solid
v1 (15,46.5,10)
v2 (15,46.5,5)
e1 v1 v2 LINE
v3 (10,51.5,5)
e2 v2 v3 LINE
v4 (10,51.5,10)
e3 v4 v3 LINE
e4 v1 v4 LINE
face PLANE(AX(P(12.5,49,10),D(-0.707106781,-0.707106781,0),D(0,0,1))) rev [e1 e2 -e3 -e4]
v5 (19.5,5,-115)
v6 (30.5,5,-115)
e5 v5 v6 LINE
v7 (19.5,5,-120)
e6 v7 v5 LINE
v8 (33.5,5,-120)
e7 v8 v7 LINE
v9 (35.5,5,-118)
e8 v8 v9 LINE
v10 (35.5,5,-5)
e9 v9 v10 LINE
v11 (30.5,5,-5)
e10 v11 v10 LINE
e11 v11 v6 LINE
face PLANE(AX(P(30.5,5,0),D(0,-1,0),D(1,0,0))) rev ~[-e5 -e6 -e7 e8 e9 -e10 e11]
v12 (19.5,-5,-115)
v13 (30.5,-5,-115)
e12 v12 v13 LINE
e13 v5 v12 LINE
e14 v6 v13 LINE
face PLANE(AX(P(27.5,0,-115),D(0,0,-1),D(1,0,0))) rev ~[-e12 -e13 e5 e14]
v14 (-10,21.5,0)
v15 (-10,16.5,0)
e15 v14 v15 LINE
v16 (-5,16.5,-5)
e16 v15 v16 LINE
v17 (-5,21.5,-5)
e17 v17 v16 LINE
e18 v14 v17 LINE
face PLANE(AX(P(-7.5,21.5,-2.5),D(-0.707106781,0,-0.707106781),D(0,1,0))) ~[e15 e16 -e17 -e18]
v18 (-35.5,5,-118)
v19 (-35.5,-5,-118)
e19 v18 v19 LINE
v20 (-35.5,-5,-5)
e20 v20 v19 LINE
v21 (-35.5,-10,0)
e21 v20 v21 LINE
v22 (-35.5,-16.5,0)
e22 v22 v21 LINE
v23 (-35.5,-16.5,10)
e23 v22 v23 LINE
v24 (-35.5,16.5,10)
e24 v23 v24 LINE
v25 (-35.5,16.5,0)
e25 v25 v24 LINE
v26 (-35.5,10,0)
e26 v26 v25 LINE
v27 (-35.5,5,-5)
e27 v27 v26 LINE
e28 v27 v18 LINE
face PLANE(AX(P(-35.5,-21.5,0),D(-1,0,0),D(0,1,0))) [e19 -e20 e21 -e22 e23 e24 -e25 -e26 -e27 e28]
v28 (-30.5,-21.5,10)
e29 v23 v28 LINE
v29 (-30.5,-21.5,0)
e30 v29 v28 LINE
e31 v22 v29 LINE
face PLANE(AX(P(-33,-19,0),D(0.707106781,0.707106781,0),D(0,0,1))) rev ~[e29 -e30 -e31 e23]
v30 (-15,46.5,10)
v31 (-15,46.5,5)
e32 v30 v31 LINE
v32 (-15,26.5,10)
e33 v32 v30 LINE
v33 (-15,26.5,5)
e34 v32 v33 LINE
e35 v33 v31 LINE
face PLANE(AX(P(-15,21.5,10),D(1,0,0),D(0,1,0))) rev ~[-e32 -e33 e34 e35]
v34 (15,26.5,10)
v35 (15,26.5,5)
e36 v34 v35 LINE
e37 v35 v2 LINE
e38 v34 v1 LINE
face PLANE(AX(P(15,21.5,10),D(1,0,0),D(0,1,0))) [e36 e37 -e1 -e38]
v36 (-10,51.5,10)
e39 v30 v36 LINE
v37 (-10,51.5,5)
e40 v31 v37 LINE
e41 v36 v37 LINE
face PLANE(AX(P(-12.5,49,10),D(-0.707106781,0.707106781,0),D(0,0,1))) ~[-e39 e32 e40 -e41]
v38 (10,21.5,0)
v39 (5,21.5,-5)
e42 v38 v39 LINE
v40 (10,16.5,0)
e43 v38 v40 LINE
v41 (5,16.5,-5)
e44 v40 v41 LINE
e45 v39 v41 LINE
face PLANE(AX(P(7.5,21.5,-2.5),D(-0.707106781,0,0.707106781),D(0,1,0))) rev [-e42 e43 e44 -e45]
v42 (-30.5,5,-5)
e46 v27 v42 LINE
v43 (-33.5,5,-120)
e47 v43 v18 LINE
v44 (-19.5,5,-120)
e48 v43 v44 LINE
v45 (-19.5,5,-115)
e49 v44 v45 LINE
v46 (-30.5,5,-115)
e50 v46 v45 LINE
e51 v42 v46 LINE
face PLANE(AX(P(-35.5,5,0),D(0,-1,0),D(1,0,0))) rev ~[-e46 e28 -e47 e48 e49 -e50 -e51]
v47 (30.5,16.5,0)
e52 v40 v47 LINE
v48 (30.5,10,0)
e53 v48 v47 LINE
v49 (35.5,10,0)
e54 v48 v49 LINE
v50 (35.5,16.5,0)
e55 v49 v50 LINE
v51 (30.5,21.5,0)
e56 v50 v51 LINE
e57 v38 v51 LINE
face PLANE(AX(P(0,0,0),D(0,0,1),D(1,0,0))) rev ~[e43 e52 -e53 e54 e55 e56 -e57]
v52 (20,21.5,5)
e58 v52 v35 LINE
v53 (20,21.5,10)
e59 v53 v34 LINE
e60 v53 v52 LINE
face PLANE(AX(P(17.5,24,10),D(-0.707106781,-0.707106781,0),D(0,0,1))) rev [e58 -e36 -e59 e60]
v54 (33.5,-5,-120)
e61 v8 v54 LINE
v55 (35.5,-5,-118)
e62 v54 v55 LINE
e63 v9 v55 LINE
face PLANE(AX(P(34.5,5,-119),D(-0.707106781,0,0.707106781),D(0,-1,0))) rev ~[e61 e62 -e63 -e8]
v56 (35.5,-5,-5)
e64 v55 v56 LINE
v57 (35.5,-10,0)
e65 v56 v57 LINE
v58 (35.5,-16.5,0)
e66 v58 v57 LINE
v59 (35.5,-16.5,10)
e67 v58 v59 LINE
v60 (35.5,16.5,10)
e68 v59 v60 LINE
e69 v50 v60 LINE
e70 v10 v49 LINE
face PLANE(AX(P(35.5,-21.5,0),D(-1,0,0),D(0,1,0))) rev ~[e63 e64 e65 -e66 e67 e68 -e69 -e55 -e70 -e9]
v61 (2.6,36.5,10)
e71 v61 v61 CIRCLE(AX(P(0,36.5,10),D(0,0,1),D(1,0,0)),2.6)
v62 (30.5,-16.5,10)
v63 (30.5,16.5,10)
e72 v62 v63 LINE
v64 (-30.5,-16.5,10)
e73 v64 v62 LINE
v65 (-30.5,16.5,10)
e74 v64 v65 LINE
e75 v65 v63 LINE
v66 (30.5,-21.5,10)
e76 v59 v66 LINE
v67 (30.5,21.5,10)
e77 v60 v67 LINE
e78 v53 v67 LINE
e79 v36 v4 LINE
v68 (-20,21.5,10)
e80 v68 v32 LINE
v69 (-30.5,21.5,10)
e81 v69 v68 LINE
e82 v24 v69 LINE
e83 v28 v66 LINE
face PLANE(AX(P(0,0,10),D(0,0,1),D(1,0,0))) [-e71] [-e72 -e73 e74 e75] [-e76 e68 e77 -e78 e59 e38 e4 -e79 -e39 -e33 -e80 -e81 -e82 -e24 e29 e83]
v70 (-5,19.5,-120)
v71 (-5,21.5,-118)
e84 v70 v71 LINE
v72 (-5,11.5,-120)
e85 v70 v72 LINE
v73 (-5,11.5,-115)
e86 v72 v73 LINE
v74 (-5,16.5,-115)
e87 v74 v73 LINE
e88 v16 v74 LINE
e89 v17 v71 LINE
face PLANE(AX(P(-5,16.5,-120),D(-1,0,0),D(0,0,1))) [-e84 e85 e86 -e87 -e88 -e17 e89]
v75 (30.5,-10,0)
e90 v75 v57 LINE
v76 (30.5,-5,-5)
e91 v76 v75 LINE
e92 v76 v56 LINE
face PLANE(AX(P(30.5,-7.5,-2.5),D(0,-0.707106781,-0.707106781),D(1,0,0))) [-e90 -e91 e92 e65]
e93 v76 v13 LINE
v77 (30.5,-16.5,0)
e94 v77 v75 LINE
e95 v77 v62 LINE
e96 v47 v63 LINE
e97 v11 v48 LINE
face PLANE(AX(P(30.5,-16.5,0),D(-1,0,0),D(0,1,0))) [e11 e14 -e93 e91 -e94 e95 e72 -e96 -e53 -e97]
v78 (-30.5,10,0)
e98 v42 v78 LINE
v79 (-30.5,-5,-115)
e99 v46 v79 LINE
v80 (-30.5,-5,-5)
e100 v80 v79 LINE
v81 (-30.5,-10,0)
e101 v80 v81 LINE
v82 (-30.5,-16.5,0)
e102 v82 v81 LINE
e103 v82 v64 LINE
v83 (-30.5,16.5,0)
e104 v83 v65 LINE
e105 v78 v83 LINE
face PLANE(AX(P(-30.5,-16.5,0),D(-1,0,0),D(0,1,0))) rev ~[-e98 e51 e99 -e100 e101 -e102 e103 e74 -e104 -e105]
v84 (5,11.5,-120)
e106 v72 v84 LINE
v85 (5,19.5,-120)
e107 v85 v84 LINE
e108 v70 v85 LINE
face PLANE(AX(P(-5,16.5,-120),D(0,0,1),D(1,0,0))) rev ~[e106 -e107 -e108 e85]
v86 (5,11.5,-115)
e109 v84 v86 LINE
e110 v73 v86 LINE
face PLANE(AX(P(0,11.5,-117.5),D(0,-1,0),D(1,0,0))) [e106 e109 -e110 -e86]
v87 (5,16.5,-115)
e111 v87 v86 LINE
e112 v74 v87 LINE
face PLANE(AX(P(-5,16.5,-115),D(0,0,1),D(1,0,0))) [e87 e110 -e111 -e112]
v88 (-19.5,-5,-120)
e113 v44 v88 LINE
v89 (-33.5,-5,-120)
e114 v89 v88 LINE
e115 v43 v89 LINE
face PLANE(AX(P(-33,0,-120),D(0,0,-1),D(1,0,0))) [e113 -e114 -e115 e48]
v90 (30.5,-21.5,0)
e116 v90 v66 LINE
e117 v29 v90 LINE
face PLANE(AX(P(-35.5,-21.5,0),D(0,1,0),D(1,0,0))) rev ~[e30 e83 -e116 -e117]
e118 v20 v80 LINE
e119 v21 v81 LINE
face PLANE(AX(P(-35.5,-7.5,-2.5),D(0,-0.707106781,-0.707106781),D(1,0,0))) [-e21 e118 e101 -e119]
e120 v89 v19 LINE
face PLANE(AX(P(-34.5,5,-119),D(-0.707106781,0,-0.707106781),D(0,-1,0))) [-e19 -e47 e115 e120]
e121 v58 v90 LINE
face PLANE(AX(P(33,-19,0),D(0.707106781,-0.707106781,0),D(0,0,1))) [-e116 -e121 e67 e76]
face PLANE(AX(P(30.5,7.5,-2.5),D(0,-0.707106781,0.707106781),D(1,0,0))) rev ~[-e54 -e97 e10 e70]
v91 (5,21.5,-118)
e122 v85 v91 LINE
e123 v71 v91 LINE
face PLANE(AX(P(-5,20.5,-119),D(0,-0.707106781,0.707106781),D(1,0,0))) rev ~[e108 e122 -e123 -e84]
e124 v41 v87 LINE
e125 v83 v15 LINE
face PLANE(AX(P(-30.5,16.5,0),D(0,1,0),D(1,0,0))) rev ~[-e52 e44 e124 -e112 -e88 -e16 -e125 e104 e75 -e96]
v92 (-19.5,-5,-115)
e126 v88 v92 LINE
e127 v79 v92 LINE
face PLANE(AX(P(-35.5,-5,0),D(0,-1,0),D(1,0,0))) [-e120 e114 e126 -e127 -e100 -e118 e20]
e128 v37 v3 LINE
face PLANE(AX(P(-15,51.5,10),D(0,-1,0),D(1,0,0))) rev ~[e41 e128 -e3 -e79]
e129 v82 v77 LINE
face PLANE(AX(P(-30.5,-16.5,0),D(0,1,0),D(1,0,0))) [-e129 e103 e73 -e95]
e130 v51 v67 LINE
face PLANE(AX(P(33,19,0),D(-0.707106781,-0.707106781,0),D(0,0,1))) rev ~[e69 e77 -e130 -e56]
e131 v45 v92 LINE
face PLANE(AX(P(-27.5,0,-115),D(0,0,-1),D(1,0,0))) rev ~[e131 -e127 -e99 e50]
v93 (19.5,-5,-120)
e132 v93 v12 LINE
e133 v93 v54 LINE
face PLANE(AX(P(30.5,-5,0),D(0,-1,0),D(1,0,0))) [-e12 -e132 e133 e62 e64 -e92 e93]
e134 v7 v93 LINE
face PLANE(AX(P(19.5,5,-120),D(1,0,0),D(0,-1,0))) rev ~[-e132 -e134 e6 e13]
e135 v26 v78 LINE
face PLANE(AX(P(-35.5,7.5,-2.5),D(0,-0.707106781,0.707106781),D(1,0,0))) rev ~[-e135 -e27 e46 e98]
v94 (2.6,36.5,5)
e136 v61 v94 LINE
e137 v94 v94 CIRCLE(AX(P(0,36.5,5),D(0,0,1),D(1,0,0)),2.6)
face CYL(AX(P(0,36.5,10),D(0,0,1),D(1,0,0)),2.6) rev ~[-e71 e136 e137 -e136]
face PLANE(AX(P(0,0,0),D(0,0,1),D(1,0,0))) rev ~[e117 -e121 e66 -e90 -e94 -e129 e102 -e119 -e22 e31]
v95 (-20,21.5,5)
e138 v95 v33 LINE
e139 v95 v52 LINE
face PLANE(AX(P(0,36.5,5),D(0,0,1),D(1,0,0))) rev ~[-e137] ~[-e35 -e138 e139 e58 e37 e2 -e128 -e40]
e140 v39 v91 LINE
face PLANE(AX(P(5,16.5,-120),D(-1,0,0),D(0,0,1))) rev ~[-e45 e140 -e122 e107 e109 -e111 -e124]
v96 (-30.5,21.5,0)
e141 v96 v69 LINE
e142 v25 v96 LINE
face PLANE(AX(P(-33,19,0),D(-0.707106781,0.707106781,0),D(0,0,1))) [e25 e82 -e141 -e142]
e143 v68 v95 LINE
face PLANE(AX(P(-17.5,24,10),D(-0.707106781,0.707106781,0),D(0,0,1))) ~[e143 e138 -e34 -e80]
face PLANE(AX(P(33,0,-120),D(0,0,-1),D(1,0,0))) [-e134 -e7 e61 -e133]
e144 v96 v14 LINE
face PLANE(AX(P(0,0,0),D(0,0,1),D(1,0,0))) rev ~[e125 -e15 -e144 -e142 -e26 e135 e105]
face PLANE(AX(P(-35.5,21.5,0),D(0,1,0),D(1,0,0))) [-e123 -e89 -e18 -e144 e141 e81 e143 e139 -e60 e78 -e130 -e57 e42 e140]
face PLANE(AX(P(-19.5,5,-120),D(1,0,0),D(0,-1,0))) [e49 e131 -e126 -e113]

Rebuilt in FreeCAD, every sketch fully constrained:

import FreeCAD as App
import Part
import Sketcher
from FreeCAD import Vector


def edges_at(feature, points):
    """Names of the edges that pass closest to the given points."""
    edges = feature.Shape.Edges
    near = lambda p: min(range(len(edges)), key=lambda i: edges[i].distToShape(Part.Vertex(*p))[0])
    return sorted({f"Edge{near(p) + 1}" for p in points})

doc = App.newDocument("Part")
body = doc.addObject("PartDesign::Body", "Body")

# Sketch on XY plane
sketch1 = body.newObject("Sketcher::SketchObject", "Sketch")
sketch1.AttachmentSupport = (doc.getObject("XY_Plane"), [""])
sketch1.MapMode = "FlatFace"
sketch1.addGeometry([
    Part.LineSegment(Vector(-36, 22, 0), Vector(-36, -22, 0)),  # 0
    Part.LineSegment(Vector(-36, -22, 0), Vector(36, -22, 0)),  # 1
    Part.LineSegment(Vector(36, -22, 0), Vector(36, 22, 0)),  # 2
    Part.LineSegment(Vector(36, 22, 0), Vector(-36, 22, 0)),  # 3
    Part.LineSegment(Vector(30, -16, 0), Vector(-30, -16, 0)),  # 4
    Part.LineSegment(Vector(-30, -16, 0), Vector(-30, 16, 0)),  # 5
    Part.LineSegment(Vector(-30, 16, 0), Vector(30, 16, 0)),  # 6
    Part.LineSegment(Vector(30, 16, 0), Vector(30, -16, 0)),  # 7
], False)
sketch1.addConstraint([
    Sketcher.Constraint("Coincident", 0, 2, 1, 1),
    Sketcher.Constraint("Coincident", 1, 2, 2, 1),
    Sketcher.Constraint("Coincident", 2, 2, 3, 1),
    Sketcher.Constraint("Coincident", 3, 2, 0, 1),
    Sketcher.Constraint("Coincident", 4, 2, 5, 1),
    Sketcher.Constraint("Coincident", 5, 2, 6, 1),
    Sketcher.Constraint("Coincident", 6, 2, 7, 1),
    Sketcher.Constraint("Coincident", 7, 2, 4, 1),
    Sketcher.Constraint("Vertical", 0),
    Sketcher.Constraint("Horizontal", 1),
    Sketcher.Constraint("Vertical", 2),
    Sketcher.Constraint("Horizontal", 3),
    Sketcher.Constraint("Horizontal", 4),
    Sketcher.Constraint("Vertical", 5),
    Sketcher.Constraint("Horizontal", 6),
    Sketcher.Constraint("Vertical", 7),
    Sketcher.Constraint("Symmetric", 0, 2, 2, 2, -1, 1),
    Sketcher.Constraint("Symmetric", 4, 2, 6, 2, -1, 1),
    Sketcher.Constraint("DistanceX", 1, 1, 1, 2, 71.0),
    Sketcher.Constraint("DistanceX", 4, 2, 4, 1, 61.0),
    Sketcher.Constraint("DistanceY", 0, 2, 0, 1, 43.0),
    Sketcher.Constraint("DistanceY", 5, 1, 5, 2, 33.0),
])
pad1 = body.newObject("PartDesign::Pad", "Pad")
pad1.Profile = sketch1
pad1.Length = 10

# Sketch on XY plane
sketch2 = body.newObject("Sketcher::SketchObject", "Sketch001")
sketch2.AttachmentSupport = (doc.getObject("XY_Plane"), [""])
sketch2.MapMode = "FlatFace"
sketch2.addGeometry([
    Part.LineSegment(Vector(-36, -5, 0), Vector(-36, 5, 0)),  # 0
    Part.LineSegment(Vector(-36, 5, 0), Vector(-30, 5, 0)),  # 1
    Part.LineSegment(Vector(-30, 5, 0), Vector(-30, -5, 0)),  # 2
    Part.LineSegment(Vector(-30, -5, 0), Vector(-36, -5, 0)),  # 3
    Part.LineSegment(Vector(30, -5, 0), Vector(30, 5, 0)),  # 4
    Part.LineSegment(Vector(30, 5, 0), Vector(36, 5, 0)),  # 5
    Part.LineSegment(Vector(36, 5, 0), Vector(36, -5, 0)),  # 6
    Part.LineSegment(Vector(36, -5, 0), Vector(30, -5, 0)),  # 7
    Part.LineSegment(Vector(-5, 16, 0), Vector(-5, 22, 0)),  # 8
    Part.LineSegment(Vector(-5, 22, 0), Vector(5, 22, 0)),  # 9
    Part.LineSegment(Vector(5, 22, 0), Vector(5, 16, 0)),  # 10
    Part.LineSegment(Vector(5, 16, 0), Vector(-5, 16, 0)),  # 11
], False)
sketch2.addConstraint([
    Sketcher.Constraint("Coincident", 0, 2, 1, 1),
    Sketcher.Constraint("Coincident", 1, 2, 2, 1),
    Sketcher.Constraint("Coincident", 2, 2, 3, 1),
    Sketcher.Constraint("Coincident", 3, 2, 0, 1),
    Sketcher.Constraint("Coincident", 4, 2, 5, 1),
    Sketcher.Constraint("Coincident", 5, 2, 6, 1),
    Sketcher.Constraint("Coincident", 6, 2, 7, 1),
    Sketcher.Constraint("Coincident", 7, 2, 4, 1),
    Sketcher.Constraint("Coincident", 8, 2, 9, 1),
    Sketcher.Constraint("Coincident", 9, 2, 10, 1),
    Sketcher.Constraint("Coincident", 10, 2, 11, 1),
    Sketcher.Constraint("Coincident", 11, 2, 8, 1),
    Sketcher.Constraint("Vertical", 0),
    Sketcher.Constraint("Horizontal", 1),
    Sketcher.Constraint("Vertical", 2),
    Sketcher.Constraint("Horizontal", 3),
    Sketcher.Constraint("Vertical", 4),
    Sketcher.Constraint("Horizontal", 5),
    Sketcher.Constraint("Vertical", 6),
    Sketcher.Constraint("Horizontal", 7),
    Sketcher.Constraint("Vertical", 8),
    Sketcher.Constraint("Horizontal", 9),
    Sketcher.Constraint("Vertical", 10),
    Sketcher.Constraint("Horizontal", 11),
    Sketcher.Constraint("Symmetric", 2, 2, 4, 2, -1, 1),
    Sketcher.Constraint("Symmetric", 0, 2, 6, 2, -1, 1),
    Sketcher.Constraint("Horizontal", 1, 2, 4, 2),
    Sketcher.Constraint("Equal", 11, 0),
    Sketcher.Constraint("Equal", 7, 8),
    Sketcher.Constraint("DistanceX", 1, 1, 1, 2, 5.0),
    Sketcher.Constraint("DistanceX", 9, 1, 9, 2, 10.0),
    Sketcher.Constraint("DistanceX", 8, 2, -1, 1, 5.0),
    Sketcher.Constraint("DistanceX", 1, 2, 4, 2, 61.0),
    Sketcher.Constraint("DistanceY", -1, 1, 8, 2, 21.5),
])
pad2 = body.newObject("PartDesign::Pad", "Pad001")
pad2.Profile = sketch2
pad2.Length = 120
pad2.Reversed = True

# Sketch on XZ plane
sketch3 = body.newObject("Sketcher::SketchObject", "Sketch002")
sketch3.AttachmentSupport = (doc.getObject("XZ_Plane"), [""])
sketch3.MapMode = "FlatFace"
sketch3.AttachmentOffset = App.Placement(Vector(0, 0, -16.5), App.Rotation())
sketch3.addGeometry([
    Part.LineSegment(Vector(-5, -115, 0), Vector(-5, -120, 0)),
    Part.LineSegment(Vector(-5, -120, 0), Vector(5, -120, 0)),
    Part.LineSegment(Vector(5, -120, 0), Vector(5, -115, 0)),
    Part.LineSegment(Vector(5, -115, 0), Vector(-5, -115, 0)),
], False)
sketch3.addConstraint([
    Sketcher.Constraint("Coincident", 0, 2, 1, 1),
    Sketcher.Constraint("Coincident", 1, 2, 2, 1),
    Sketcher.Constraint("Coincident", 2, 2, 3, 1),
    Sketcher.Constraint("Coincident", 3, 2, 0, 1),
    Sketcher.Constraint("Vertical", 0),
    Sketcher.Constraint("Horizontal", 1),
    Sketcher.Constraint("Vertical", 2),
    Sketcher.Constraint("Horizontal", 3),
    Sketcher.Constraint("DistanceX", 1, 1, 1, 2, 10.0),
    Sketcher.Constraint("DistanceY", 0, 2, 0, 1, 5.0),
    Sketcher.Constraint("DistanceX", 0, 2, -1, 1, 5.0),
    Sketcher.Constraint("DistanceY", 0, 2, -1, 1, 120.0),
])
pad3 = body.newObject("PartDesign::Pad", "Pad002")
pad3.Profile = sketch3
pad3.Length = 5

# Sketch on XY plane
sketch4 = body.newObject("Sketcher::SketchObject", "Sketch003")
sketch4.AttachmentSupport = (doc.getObject("XY_Plane"), [""])
sketch4.MapMode = "FlatFace"
sketch4.AttachmentOffset = App.Placement(Vector(0, 0, -120), App.Rotation())
sketch4.addGeometry([
    Part.LineSegment(Vector(-36, -5, 0), Vector(-36, 5, 0)),  # 0
    Part.LineSegment(Vector(-36, 5, 0), Vector(-20, 5, 0)),  # 1
    Part.LineSegment(Vector(-20, 5, 0), Vector(-20, -5, 0)),  # 2
    Part.LineSegment(Vector(-20, -5, 0), Vector(-36, -5, 0)),  # 3
    Part.LineSegment(Vector(20, -5, 0), Vector(20, 5, 0)),  # 4
    Part.LineSegment(Vector(20, 5, 0), Vector(36, 5, 0)),  # 5
    Part.LineSegment(Vector(36, 5, 0), Vector(36, -5, 0)),  # 6
    Part.LineSegment(Vector(36, -5, 0), Vector(20, -5, 0)),  # 7
], False)
sketch4.addConstraint([
    Sketcher.Constraint("Coincident", 0, 2, 1, 1),
    Sketcher.Constraint("Coincident", 1, 2, 2, 1),
    Sketcher.Constraint("Coincident", 2, 2, 3, 1),
    Sketcher.Constraint("Coincident", 3, 2, 0, 1),
    Sketcher.Constraint("Coincident", 4, 2, 5, 1),
    Sketcher.Constraint("Coincident", 5, 2, 6, 1),
    Sketcher.Constraint("Coincident", 6, 2, 7, 1),
    Sketcher.Constraint("Coincident", 7, 2, 4, 1),
    Sketcher.Constraint("Vertical", 0),
    Sketcher.Constraint("Horizontal", 1),
    Sketcher.Constraint("Vertical", 2),
    Sketcher.Constraint("Horizontal", 3),
    Sketcher.Constraint("Vertical", 4),
    Sketcher.Constraint("Horizontal", 5),
    Sketcher.Constraint("Vertical", 6),
    Sketcher.Constraint("Horizontal", 7),
    Sketcher.Constraint("Symmetric", 2, 2, 4, 2, -1, 1),
    Sketcher.Constraint("Symmetric", 0, 2, 6, 2, -1, 1),
    Sketcher.Constraint("Horizontal", 1, 2, 4, 2),
    Sketcher.Constraint("DistanceX", 1, 1, 1, 2, 16.0),
    Sketcher.Constraint("DistanceY", 0, 1, 0, 2, 10.0),
    Sketcher.Constraint("DistanceX", 1, 2, 4, 2, 39.0),
])
pad4 = body.newObject("PartDesign::Pad", "Pad003")
pad4.Profile = sketch4
pad4.Length = 5
doc.recompute()

chamfer = body.newObject("PartDesign::Chamfer", "Chamfer")
chamfer.Base = (pad4, edges_at(pad4, [
    (-5, 19, 0),
    (-33, 5, 0),
    (5, 19, 0),
    (33, 5, 0),
    (33, -5, 0),
    (-33, -5, 0),
    (35.5, 21.5, 5),
    (35.5, -21.5, 5),
    (-35.5, 21.5, 5),
    (-35.5, -21.5, 5),
]))
chamfer.Size = 5

# Sketch on XY plane
sketch5 = body.newObject("Sketcher::SketchObject", "Sketch004")
sketch5.AttachmentSupport = (doc.getObject("XY_Plane"), [""])
sketch5.MapMode = "FlatFace"
sketch5.AttachmentOffset = App.Placement(Vector(0, 0, 10), App.Rotation())
sketch5.addGeometry([
    Part.LineSegment(Vector(-15, 51.5, 0), Vector(-15, 21.5, 0)),  # 0
    Part.LineSegment(Vector(-15, 21.5, 0), Vector(15, 21.5, 0)),  # 1
    Part.LineSegment(Vector(15, 21.5, 0), Vector(15, 51.5, 0)),  # 2
    Part.LineSegment(Vector(15, 51.5, 0), Vector(-15, 51.5, 0)),  # 3
    Part.Circle(Vector(0, 36.5, 0), Vector(0, 0, 1), 2.6),  # 4
], False)
sketch5.addConstraint([
    Sketcher.Constraint("Coincident", 0, 2, 1, 1),
    Sketcher.Constraint("Coincident", 1, 2, 2, 1),
    Sketcher.Constraint("Coincident", 2, 2, 3, 1),
    Sketcher.Constraint("Coincident", 3, 2, 0, 1),
    Sketcher.Constraint("Vertical", 0),
    Sketcher.Constraint("Horizontal", 1),
    Sketcher.Constraint("Vertical", 2),
    Sketcher.Constraint("Horizontal", 3),
    Sketcher.Constraint("PointOnObject", 4, 3, -2),
    Sketcher.Constraint("Equal", 3, 0),
    Sketcher.Constraint("Diameter", 4, 5.2),
    Sketcher.Constraint("DistanceX", 1, 1, 1, 2, 30.0),
    Sketcher.Constraint("DistanceX", 0, 2, -1, 1, 15.0),
    Sketcher.Constraint("DistanceY", 0, 2, 4, 3, 15.0),
    Sketcher.Constraint("DistanceY", -1, 1, 4, 3, 36.5),
])
pad5 = body.newObject("PartDesign::Pad", "Pad004")
pad5.Profile = sketch5
pad5.Length = 5
pad5.Reversed = True
doc.recompute()

chamfer2 = body.newObject("PartDesign::Chamfer", "Chamfer001")
chamfer2.Base = (pad5, edges_at(pad5, [
    (15, 21.5, 7.5),
    (-15, 21.5, 7.5),
    (-15, 51.5, 7.5),
    (15, 51.5, 7.5),
]))
chamfer2.Size = 5
doc.recompute()

chamfer3 = body.newObject("PartDesign::Chamfer", "Chamfer002")
chamfer3.Base = (chamfer2, edges_at(chamfer2, [(35.5, 0, -120), (0, 21.5, -120), (-35.5, 0, -120)]))
chamfer3.Size = 2

doc.recompute()
